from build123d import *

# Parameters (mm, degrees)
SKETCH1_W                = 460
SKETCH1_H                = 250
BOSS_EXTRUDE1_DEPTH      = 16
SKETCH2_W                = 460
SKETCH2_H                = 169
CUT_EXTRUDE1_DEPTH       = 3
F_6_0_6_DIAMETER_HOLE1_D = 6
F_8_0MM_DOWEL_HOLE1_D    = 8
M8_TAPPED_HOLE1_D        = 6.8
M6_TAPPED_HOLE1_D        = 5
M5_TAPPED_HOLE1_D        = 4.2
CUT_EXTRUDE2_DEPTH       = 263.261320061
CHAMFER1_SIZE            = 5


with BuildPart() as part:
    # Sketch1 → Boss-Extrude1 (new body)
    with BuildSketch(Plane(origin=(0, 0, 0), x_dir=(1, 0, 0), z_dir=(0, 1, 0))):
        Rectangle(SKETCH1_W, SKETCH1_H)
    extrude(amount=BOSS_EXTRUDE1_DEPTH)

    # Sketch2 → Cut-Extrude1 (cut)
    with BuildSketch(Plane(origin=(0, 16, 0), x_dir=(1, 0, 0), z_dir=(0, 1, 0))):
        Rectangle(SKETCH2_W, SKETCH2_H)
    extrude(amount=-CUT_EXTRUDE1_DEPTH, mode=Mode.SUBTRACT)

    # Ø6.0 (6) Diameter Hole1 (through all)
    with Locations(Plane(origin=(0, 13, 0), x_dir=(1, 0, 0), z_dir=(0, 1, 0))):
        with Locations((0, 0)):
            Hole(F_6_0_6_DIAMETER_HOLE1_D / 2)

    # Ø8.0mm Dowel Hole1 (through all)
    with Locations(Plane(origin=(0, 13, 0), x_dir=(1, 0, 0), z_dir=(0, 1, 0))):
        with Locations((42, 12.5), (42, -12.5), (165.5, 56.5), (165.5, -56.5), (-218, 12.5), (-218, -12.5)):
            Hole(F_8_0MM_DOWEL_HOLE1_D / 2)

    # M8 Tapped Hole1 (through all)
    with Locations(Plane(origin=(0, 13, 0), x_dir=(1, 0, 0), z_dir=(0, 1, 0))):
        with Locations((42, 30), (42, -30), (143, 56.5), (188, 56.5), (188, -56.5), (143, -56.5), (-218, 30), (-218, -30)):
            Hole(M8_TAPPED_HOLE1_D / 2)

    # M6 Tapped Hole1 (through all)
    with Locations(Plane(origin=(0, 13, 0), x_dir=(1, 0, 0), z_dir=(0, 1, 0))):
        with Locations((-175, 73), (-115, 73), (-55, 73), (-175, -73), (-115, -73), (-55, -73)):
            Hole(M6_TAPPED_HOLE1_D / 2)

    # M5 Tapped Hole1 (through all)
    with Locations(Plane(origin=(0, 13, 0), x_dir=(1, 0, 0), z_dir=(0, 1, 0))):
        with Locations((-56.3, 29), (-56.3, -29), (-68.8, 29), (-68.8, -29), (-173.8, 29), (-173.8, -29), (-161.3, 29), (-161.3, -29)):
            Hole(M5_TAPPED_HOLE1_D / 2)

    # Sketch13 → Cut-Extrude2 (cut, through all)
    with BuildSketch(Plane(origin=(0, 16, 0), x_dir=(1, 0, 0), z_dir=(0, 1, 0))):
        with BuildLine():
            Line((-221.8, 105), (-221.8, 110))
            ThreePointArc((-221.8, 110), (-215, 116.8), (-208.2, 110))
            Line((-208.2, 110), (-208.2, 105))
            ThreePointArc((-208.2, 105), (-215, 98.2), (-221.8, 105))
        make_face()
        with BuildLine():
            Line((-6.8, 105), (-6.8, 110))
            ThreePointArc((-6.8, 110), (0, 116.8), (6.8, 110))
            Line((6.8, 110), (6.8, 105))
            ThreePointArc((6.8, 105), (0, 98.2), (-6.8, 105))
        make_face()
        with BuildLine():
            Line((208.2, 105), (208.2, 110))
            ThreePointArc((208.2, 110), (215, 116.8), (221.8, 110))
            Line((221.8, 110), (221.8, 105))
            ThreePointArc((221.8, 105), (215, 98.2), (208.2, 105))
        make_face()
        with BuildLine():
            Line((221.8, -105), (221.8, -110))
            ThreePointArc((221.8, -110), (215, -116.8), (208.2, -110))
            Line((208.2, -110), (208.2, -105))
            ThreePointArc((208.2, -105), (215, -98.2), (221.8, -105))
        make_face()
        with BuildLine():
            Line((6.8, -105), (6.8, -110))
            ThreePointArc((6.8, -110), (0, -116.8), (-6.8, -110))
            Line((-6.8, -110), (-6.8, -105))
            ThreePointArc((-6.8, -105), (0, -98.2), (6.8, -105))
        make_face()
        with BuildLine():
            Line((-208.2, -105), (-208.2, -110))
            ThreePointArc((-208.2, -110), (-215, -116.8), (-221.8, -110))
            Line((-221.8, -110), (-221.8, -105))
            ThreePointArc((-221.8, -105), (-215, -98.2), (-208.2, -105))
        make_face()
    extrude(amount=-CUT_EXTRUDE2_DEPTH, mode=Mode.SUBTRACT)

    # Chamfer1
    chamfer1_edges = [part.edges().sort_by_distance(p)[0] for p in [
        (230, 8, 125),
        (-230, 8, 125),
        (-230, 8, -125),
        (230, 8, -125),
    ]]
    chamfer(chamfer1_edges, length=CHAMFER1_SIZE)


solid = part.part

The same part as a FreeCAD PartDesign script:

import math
import FreeCAD as App
import Part
import Sketcher

V = App.Vector


def edges_at(feature, points):
    """Names of the edges that pass closest to the given points."""
    edges = feature.Shape.Edges
    near = lambda p: min(range(len(edges)), key=lambda i: edges[i].distToShape(Part.Vertex(*p))[0])
    return sorted({f"Edge{near(p) + 1}" for p in points})

doc = App.newDocument("Part")
params = doc.addObject("Spreadsheet::Sheet", "Params")
for row, (alias, value) in enumerate([
    ("sketch1_width", "460 mm"),
    ("sketch1_height", "250 mm"),
    ("pad1_length", "16 mm"),
    ("sketch2_width", "460 mm"),
    ("sketch2_height", "169 mm"),
    ("pocket1_length", "3 mm"),
    ("sketch3_diameter", "6 mm"),
    ("hole_diameter", "6 mm"),
    ("sketch4_diameter", "8 mm"),
    ("hole2_diameter", "8 mm"),
    ("sketch5_diameter", "6.8 mm"),
    ("hole3_diameter", "6.8 mm"),
    ("sketch6_diameter", "5 mm"),
    ("hole4_diameter", "5 mm"),
    ("sketch7_diameter", "4.2 mm"),
    ("hole5_diameter", "4.2 mm"),
    ("sketch8_radius", "6.8 mm"),
    ("sketch8_height", "5 mm"),
    ("chamfer_size", "5 mm"),
], start=1):
    params.set(f"A{row}", alias)
    params.set(f"B{row}", "=" + value)
    params.setAlias(f"B{row}", alias)

body = doc.addObject("PartDesign::Body", "Body")

# Sketch on XZ plane
sketch1 = body.newObject("Sketcher::SketchObject", "Sketch")
sketch1.AttachmentSupport = (doc.getObject("XZ_Plane"), [""])
sketch1.MapMode = "FlatFace"
sketch1.addGeometry([
    Part.LineSegment(V(-230, -125, 0), V(-230, 125, 0)),
    Part.LineSegment(V(-230, 125, 0), V(230, 125, 0)),
    Part.LineSegment(V(230, 125, 0), V(230, -125, 0)),
    Part.LineSegment(V(230, -125, 0), V(-230, -125, 0)),
], False)
sketch1.addConstraint([
    Sketcher.Constraint("Coincident", 0, 2, 1, 1),
    Sketcher.Constraint("Coincident", 1, 2, 2, 1),
    Sketcher.Constraint("Coincident", 2, 2, 3, 1),
    Sketcher.Constraint("Coincident", 3, 2, 0, 1),
    Sketcher.Constraint("Vertical", 0),
    Sketcher.Constraint("Horizontal", 1),
    Sketcher.Constraint("Vertical", 2),
    Sketcher.Constraint("Horizontal", 3),
    Sketcher.Constraint("Symmetric", 0, 2, 2, 2, -1, 1),
    Sketcher.Constraint("DistanceX", 1, 1, 1, 2, 460.0),
    Sketcher.Constraint("DistanceY", 0, 1, 0, 2, 250.0),
])
sketch1.setExpression("Constraints[9]", "Params.sketch1_width")
sketch1.setExpression("Constraints[10]", "Params.sketch1_height")
pad1 = body.newObject("PartDesign::Pad", "Pad")
pad1.Profile = sketch1
pad1.setExpression("Length", "Params.pad1_length")
pad1.Reversed = True

# Sketch on XZ plane
sketch2 = body.newObject("Sketcher::SketchObject", "Sketch001")
sketch2.AttachmentSupport = (doc.getObject("XZ_Plane"), [""])
sketch2.MapMode = "FlatFace"
sketch2.AttachmentOffset = App.Placement(V(0, 0, -16), App.Rotation())
sketch2.addGeometry([
    Part.LineSegment(V(-230, -84, 0), V(-230, 84, 0)),
    Part.LineSegment(V(-230, 84, 0), V(230, 84, 0)),
    Part.LineSegment(V(230, 84, 0), V(230, -84, 0)),
    Part.LineSegment(V(230, -84, 0), V(-230, -84, 0)),
], False)
sketch2.addConstraint([
    Sketcher.Constraint("Coincident", 0, 2, 1, 1),
    Sketcher.Constraint("Coincident", 1, 2, 2, 1),
    Sketcher.Constraint("Coincident", 2, 2, 3, 1),
    Sketcher.Constraint("Coincident", 3, 2, 0, 1),
    Sketcher.Constraint("Vertical", 0),
    Sketcher.Constraint("Horizontal", 1),
    Sketcher.Constraint("Vertical", 2),
    Sketcher.Constraint("Horizontal", 3),
    Sketcher.Constraint("Symmetric", 0, 2, 2, 2, -1, 1),
    Sketcher.Constraint("DistanceX", 1, 1, 1, 2, 460.0),
    Sketcher.Constraint("DistanceY", 0, 1, 0, 2, 169.0),
])
sketch2.setExpression("Constraints[9]", "Params.sketch2_width")
sketch2.setExpression("Constraints[10]", "Params.sketch2_height")
pocket1 = body.newObject("PartDesign::Pocket", "Pocket")
pocket1.Profile = sketch2
pocket1.setExpression("Length", "Params.pocket1_length")
pocket1.Reversed = True

# Sketch on XZ plane
sketch3 = body.newObject("Sketcher::SketchObject", "Sketch002")
sketch3.AttachmentSupport = (doc.getObject("XZ_Plane"), [""])
sketch3.MapMode = "FlatFace"
sketch3.AttachmentOffset = App.Placement(V(0, 0, -13), App.Rotation())
sketch3.addGeometry(Part.Circle(V(0, 0, 0), V(0, 0, 1), 3), False)
sketch3.addConstraint([
    Sketcher.Constraint("Coincident", 0, 3, -1, 1),
    Sketcher.Constraint("Diameter", 0, 6.0),
])
sketch3.setExpression("Constraints[1]", "Params.sketch3_diameter")
doc.recompute()
hole = body.newObject("PartDesign::Hole", "Hole")
hole.Profile = sketch3
hole.ThreadType = "None"
hole.setExpression("Diameter", "Params.hole_diameter")
hole.DepthType = "ThroughAll"
hole.Reversed = True

# Sketch on XZ plane
sketch4 = body.newObject("Sketcher::SketchObject", "Sketch003")
sketch4.AttachmentSupport = (doc.getObject("XZ_Plane"), [""])
sketch4.MapMode = "FlatFace"
sketch4.AttachmentOffset = App.Placement(V(0, 0, -13), App.Rotation())
sketch4.addGeometry([
    Part.Circle(V(42, -12.5, 0), V(0, 0, 1), 4),  # 0
    Part.Circle(V(42, 12.5, 0), V(0, 0, 1), 4),  # 1
    Part.Circle(V(165.5, -56.5, 0), V(0, 0, 1), 4),  # 2
    Part.Circle(V(165.5, 56.5, 0), V(0, 0, 1), 4),  # 3
    Part.Circle(V(-218, -12.5, 0), V(0, 0, 1), 4),  # 4
    Part.Circle(V(-218, 12.5, 0), V(0, 0, 1), 4),  # 5
], False)
sketch4.addConstraint([
    Sketcher.Constraint("Equal", 0, 1),
    Sketcher.Constraint("Equal", 1, 2),
    Sketcher.Constraint("Equal", 2, 3),
    Sketcher.Constraint("Equal", 3, 4),
    Sketcher.Constraint("Equal", 4, 5),
    Sketcher.Constraint("Symmetric", 0, 3, 1, 3, -1),
    Sketcher.Constraint("Symmetric", 2, 3, 3, 3, -1),
    Sketcher.Constraint("Symmetric", 4, 3, 5, 3, -1),
    Sketcher.Constraint("Horizontal", 0, 3, 4, 3),
    Sketcher.Constraint("Diameter", 0, 8.0),
    Sketcher.Constraint("DistanceX", -1, 1, 0, 3, 42.0),
    Sketcher.Constraint("DistanceX", 4, 3, -1, 1, 218.0),
    Sketcher.Constraint("DistanceY", 0, 3, 1, 3, 25.0),
    Sketcher.Constraint("DistanceY", 2, 3, 0, 3, 44.0),
    Sketcher.Constraint("DistanceX", -1, 1, 2, 3, 165.5),
])
sketch4.setExpression("Constraints[9]", "Params.sketch4_diameter")
doc.recompute()
hole2 = body.newObject("PartDesign::Hole", "Hole001")
hole2.Profile = sketch4
hole2.ThreadType = "None"
hole2.setExpression("Diameter", "Params.hole2_diameter")
hole2.DepthType = "ThroughAll"
hole2.Reversed = True

# Sketch on XZ plane
sketch5 = body.newObject("Sketcher::SketchObject", "Sketch004")
sketch5.AttachmentSupport = (doc.getObject("XZ_Plane"), [""])
sketch5.MapMode = "FlatFace"
sketch5.AttachmentOffset = App.Placement(V(0, 0, -13), App.Rotation())
sketch5.addGeometry([
    Part.Circle(V(42, -30, 0), V(0, 0, 1), 3.4),  # 0
    Part.Circle(V(42, 30, 0), V(0, 0, 1), 3.4),  # 1
    Part.Circle(V(143, -56.5, 0), V(0, 0, 1), 3.4),  # 2
    Part.Circle(V(188, -56.5, 0), V(0, 0, 1), 3.4),  # 3
    Part.Circle(V(188, 56.5, 0), V(0, 0, 1), 3.4),  # 4
    Part.Circle(V(143, 56.5, 0), V(0, 0, 1), 3.4),  # 5
    Part.Circle(V(-218, -30, 0), V(0, 0, 1), 3.4),  # 6
    Part.Circle(V(-218, 30, 0), V(0, 0, 1), 3.4),  # 7
], False)
sketch5.addConstraint([
    Sketcher.Constraint("Equal", 0, 1),
    Sketcher.Constraint("Equal", 1, 2),
    Sketcher.Constraint("Equal", 2, 3),
    Sketcher.Constraint("Equal", 3, 4),
    Sketcher.Constraint("Equal", 4, 5),
    Sketcher.Constraint("Equal", 5, 6),
    Sketcher.Constraint("Equal", 6, 7),
    Sketcher.Constraint("Symmetric", 0, 3, 1, 3, -1),
    Sketcher.Constraint("Symmetric", 3, 3, 4, 3, -1),
    Sketcher.Constraint("Symmetric", 2, 3, 5, 3, -1),
    Sketcher.Constraint("Symmetric", 6, 3, 7, 3, -1),
    Sketcher.Constraint("Horizontal", 2, 3, 3, 3),
    Sketcher.Constraint("Horizontal", 0, 3, 6, 3),
    Sketcher.Constraint("Diameter", 0, 6.8),
    Sketcher.Constraint("DistanceX", -1, 1, 0, 3, 42.0),
    Sketcher.Constraint("DistanceY", 0, 3, -1, 1, 30.0),
    Sketcher.Constraint("DistanceX", -1, 1, 2, 3, 143.0),
    Sketcher.Constraint("DistanceX", -1, 1, 3, 3, 188.0),
    Sketcher.Constraint("DistanceX", 6, 3, -1, 1, 218.0),
    Sketcher.Constraint("DistanceY", 3, 3, 4, 3, 113.0),
])
sketch5.setExpression("Constraints[13]", "Params.sketch5_diameter")
doc.recompute()
hole3 = body.newObject("PartDesign::Hole", "Hole002")
hole3.Profile = sketch5
hole3.ThreadType = "None"
hole3.setExpression("Diameter", "Params.hole3_diameter")
hole3.DepthType = "ThroughAll"
hole3.Reversed = True

# Sketch on XZ plane
sketch6 = body.newObject("Sketcher::SketchObject", "Sketch005")
sketch6.AttachmentSupport = (doc.getObject("XZ_Plane"), [""])
sketch6.MapMode = "FlatFace"
sketch6.AttachmentOffset = App.Placement(V(0, 0, -13), App.Rotation())
sketch6.addGeometry([
    Part.Circle(V(-175, -73, 0), V(0, 0, 1), 2.5),  # 0
    Part.Circle(V(-115, -73, 0), V(0, 0, 1), 2.5),  # 1
    Part.Circle(V(-55, -73, 0), V(0, 0, 1), 2.5),  # 2
    Part.Circle(V(-175, 73, 0), V(0, 0, 1), 2.5),  # 3
    Part.Circle(V(-115, 73, 0), V(0, 0, 1), 2.5),  # 4
    Part.Circle(V(-55, 73, 0), V(0, 0, 1), 2.5),  # 5
], False)
sketch6.addConstraint([
    Sketcher.Constraint("Equal", 0, 1),
    Sketcher.Constraint("Equal", 1, 2),
    Sketcher.Constraint("Equal", 2, 3),
    Sketcher.Constraint("Equal", 3, 4),
    Sketcher.Constraint("Equal", 4, 5),
    Sketcher.Constraint("Symmetric", 0, 3, 3, 3, -1),
    Sketcher.Constraint("Symmetric", 1, 3, 4, 3, -1),
    Sketcher.Constraint("Symmetric", 2, 3, 5, 3, -1),
    Sketcher.Constraint("Horizontal", 0, 3, 1, 3),
    Sketcher.Constraint("Horizontal", 1, 3, 2, 3),
    Sketcher.Constraint("Diameter", 0, 5.0),
    Sketcher.Constraint("DistanceX", 0, 3, -1, 1, 175.0),
    Sketcher.Constraint("DistanceY", 0, 3, -1, 1, 73.0),
    Sketcher.Constraint("DistanceX", 1, 3, -1, 1, 115.0),
    Sketcher.Constraint("DistanceX", 2, 3, -1, 1, 55.0),
])
sketch6.setExpression("Constraints[10]", "Params.sketch6_diameter")
doc.recompute()
hole4 = body.newObject("PartDesign::Hole", "Hole003")
hole4.Profile = sketch6
hole4.ThreadType = "None"
hole4.setExpression("Diameter", "Params.hole4_diameter")
hole4.DepthType = "ThroughAll"
hole4.Reversed = True

# Sketch on XZ plane
sketch7 = body.newObject("Sketcher::SketchObject", "Sketch006")
sketch7.AttachmentSupport = (doc.getObject("XZ_Plane"), [""])
sketch7.MapMode = "FlatFace"
sketch7.AttachmentOffset = App.Placement(V(0, 0, -13), App.Rotation())
sketch7.addGeometry([
    Part.Circle(V(-56.3, -29, 0), V(0, 0, 1), 2.1),  # 0
    Part.Circle(V(-56.3, 29, 0), V(0, 0, 1), 2.1),  # 1
    Part.Circle(V(-68.8, -29, 0), V(0, 0, 1), 2.1),  # 2
    Part.Circle(V(-68.8, 29, 0), V(0, 0, 1), 2.1),  # 3
    Part.Circle(V(-173.8, -29, 0), V(0, 0, 1), 2.1),  # 4
    Part.Circle(V(-173.8, 29, 0), V(0, 0, 1), 2.1),  # 5
    Part.Circle(V(-161.3, -29, 0), V(0, 0, 1), 2.1),  # 6
    Part.Circle(V(-161.3, 29, 0), V(0, 0, 1), 2.1),  # 7
], False)
sketch7.addConstraint([
    Sketcher.Constraint("Equal", 0, 1),
    Sketcher.Constraint("Equal", 1, 2),
    Sketcher.Constraint("Equal", 2, 3),
    Sketcher.Constraint("Equal", 3, 4),
    Sketcher.Constraint("Equal", 4, 5),
    Sketcher.Constraint("Equal", 5, 6),
    Sketcher.Constraint("Equal", 6, 7),
    Sketcher.Constraint("Symmetric", 0, 3, 1, 3, -1),
    Sketcher.Constraint("Symmetric", 2, 3, 3, 3, -1),
    Sketcher.Constraint("Symmetric", 4, 3, 5, 3, -1),
    Sketcher.Constraint("Symmetric", 6, 3, 7, 3, -1),
    Sketcher.Constraint("Horizontal", 0, 3, 2, 3),
    Sketcher.Constraint("Horizontal", 2, 3, 4, 3),
    Sketcher.Constraint("Horizontal", 4, 3, 6, 3),
    Sketcher.Constraint("Diameter", 0, 4.2),
    Sketcher.Constraint("DistanceY", 0, 3, -1, 1, 29.0),
    Sketcher.Constraint("DistanceX", 4, 3, 2, 3, 105.0),
    Sketcher.Constraint("DistanceX", 6, 3, 0, 3, 105.0),
    Sketcher.Constraint("DistanceX", 0, 3, -1, 1, 56.3),
    Sketcher.Constraint("DistanceX", 2, 3, -1, 1, 68.8),
])
sketch7.setExpression("Constraints[14]", "Params.sketch7_diameter")
doc.recompute()
hole5 = body.newObject("PartDesign::Hole", "Hole004")
hole5.Profile = sketch7
hole5.ThreadType = "None"
hole5.setExpression("Diameter", "Params.hole5_diameter")
hole5.DepthType = "ThroughAll"
hole5.Reversed = True

# Sketch on XZ plane
sketch8 = body.newObject("Sketcher::SketchObject", "Sketch007")
sketch8.AttachmentSupport = (doc.getObject("XZ_Plane"), [""])
sketch8.MapMode = "FlatFace"
sketch8.AttachmentOffset = App.Placement(V(0, 0, -16), App.Rotation())
sketch8.addGeometry([
    Part.LineSegment(V(-222, -110, 0), V(-222, -105, 0)),  # 0
    Part.ArcOfCircle(Part.Circle(V(-215, -105, 0), V(0, 0, 1), 7), math.radians(0), math.radians(180)),  # 1
    Part.LineSegment(V(-208, -105, 0), V(-208, -110, 0)),  # 2
    Part.ArcOfCircle(Part.Circle(V(-215, -110, 0), V(0, 0, 1), 7), math.radians(180), math.radians(360)),  # 3
    Part.LineSegment(V(-7, -110, 0), V(-7, -105, 0)),  # 4
    Part.ArcOfCircle(Part.Circle(V(0, -105, 0), V(0, 0, 1), 7), math.radians(0), math.radians(180)),  # 5
    Part.LineSegment(V(7, -105, 0), V(7, -110, 0)),  # 6
    Part.ArcOfCircle(Part.Circle(V(0, -110, 0), V(0, 0, 1), 7), math.radians(180), math.radians(360)),  # 7
    Part.LineSegment(V(208, -110, 0), V(208, -105, 0)),  # 8
    Part.ArcOfCircle(Part.Circle(V(215, -105, 0), V(0, 0, 1), 7), math.radians(0), math.radians(180)),  # 9
    Part.LineSegment(V(222, -105, 0), V(222, -110, 0)),  # 10
    Part.ArcOfCircle(Part.Circle(V(215, -110, 0), V(0, 0, 1), 7), math.radians(180), math.radians(360)),  # 11
    Part.LineSegment(V(222, 110, 0), V(222, 105, 0)),  # 12
    Part.ArcOfCircle(Part.Circle(V(215, 105, 0), V(0, 0, 1), 7), math.radians(180), math.radians(360)),  # 13
    Part.LineSegment(V(208, 105, 0), V(208, 110, 0)),  # 14
    Part.ArcOfCircle(Part.Circle(V(215, 110, 0), V(0, 0, 1), 7), math.radians(0), math.radians(180)),  # 15
    Part.LineSegment(V(7, 110, 0), V(7, 105, 0)),  # 16
    Part.ArcOfCircle(Part.Circle(V(0, 105, 0), V(0, 0, 1), 7), math.radians(180), math.radians(360)),  # 17
    Part.LineSegment(V(-7, 105, 0), V(-7, 110, 0)),  # 18
    Part.ArcOfCircle(Part.Circle(V(0, 110, 0), V(0, 0, 1), 7), math.radians(0), math.radians(180)),  # 19
    Part.LineSegment(V(-208, 110, 0), V(-208, 105, 0)),  # 20
    Part.ArcOfCircle(Part.Circle(V(-215, 105, 0), V(0, 0, 1), 7), math.radians(180), math.radians(360)),  # 21
    Part.LineSegment(V(-222, 105, 0), V(-222, 110, 0)),  # 22
    Part.ArcOfCircle(Part.Circle(V(-215, 110, 0), V(0, 0, 1), 7), math.radians(0), math.radians(180)),  # 23
], False)
sketch8.addConstraint([
    Sketcher.Constraint("Tangent", 0, 2, 1, 2),
    Sketcher.Constraint("Tangent", 1, 1, 2, 1),
    Sketcher.Constraint("Tangent", 2, 2, 3, 2),
    Sketcher.Constraint("Tangent", 3, 1, 0, 1),
    Sketcher.Constraint("Tangent", 4, 2, 5, 2),
    Sketcher.Constraint("Tangent", 5, 1, 6, 1),
    Sketcher.Constraint("Tangent", 6, 2, 7, 2),
    Sketcher.Constraint("Tangent", 7, 1, 4, 1),
    Sketcher.Constraint("Tangent", 8, 2, 9, 2),
    Sketcher.Constraint("Tangent", 9, 1, 10, 1),
    Sketcher.Constraint("Tangent", 10, 2, 11, 2),
    Sketcher.Constraint("Tangent", 11, 1, 8, 1),
    Sketcher.Constraint("Tangent", 12, 2, 13, 2),
    Sketcher.Constraint("Tangent", 13, 1, 14, 1),
    Sketcher.Constraint("Tangent", 14, 2, 15, 2),
    Sketcher.Constraint("Tangent", 15, 1, 12, 1),
    Sketcher.Constraint("Tangent", 16, 2, 17, 2),
    Sketcher.Constraint("Tangent", 17, 1, 18, 1),
    Sketcher.Constraint("Tangent", 18, 2, 19, 2),
    Sketcher.Constraint("Tangent", 19, 1, 16, 1),
    Sketcher.Constraint("Tangent", 20, 2, 21, 2),
    Sketcher.Constraint("Tangent", 21, 1, 22, 1),
    Sketcher.Constraint("Tangent", 22, 2, 23, 2),
    Sketcher.Constraint("Tangent", 23, 1, 20, 1),
    Sketcher.Constraint("Vertical", 0),
    Sketcher.Constraint("Vertical", 2),
    Sketcher.Constraint("Vertical", 4),
    Sketcher.Constraint("Vertical", 6),
    Sketcher.Constraint("Vertical", 8),
    Sketcher.Constraint("Vertical", 10),
    Sketcher.Constraint("Vertical", 12),
    Sketcher.Constraint("Vertical", 14),
    Sketcher.Constraint("Vertical", 16),
    Sketcher.Constraint("Vertical", 18),
    Sketcher.Constraint("Vertical", 20),
    Sketcher.Constraint("Vertical", 22),
    Sketcher.Constraint("Equal", 3, 5),
    Sketcher.Constraint("Equal", 7, 9),
    Sketcher.Constraint("Equal", 11, 13),
    Sketcher.Constraint("Equal", 15, 17),
    Sketcher.Constraint("Equal", 19, 21),
    Sketcher.Constraint("Symmetric", 1, 3, 13, 3, -1, 1),
    Sketcher.Constraint("Symmetric", 5, 3, 17, 3, -1, 1),
    Sketcher.Constraint("Symmetric", 9, 3, 21, 3, -1, 1),
    Sketcher.Constraint("Symmetric", 1, 3, 9, 3, -2),
    Sketcher.Constraint("Symmetric", 7, 3, 19, 3, -1),
    Sketcher.Constraint("Horizontal", 1, 3, 5, 3),
    Sketcher.Constraint("Horizontal", 3, 3, 7, 3),
    Sketcher.Constraint("Horizontal", 7, 3, 11, 3),
    Sketcher.Constraint("Horizontal", 15, 3, 19, 3),
    Sketcher.Constraint("Horizontal", 19, 3, 23, 3),
    Sketcher.Constraint("Radius", 1, 6.8),
    Sketcher.Constraint("DistanceY", 0, 1, 0, 2, 5.0),
    Sketcher.Constraint("DistanceX", 1, 3, -1, 1, 215.0),
    Sketcher.Constraint("DistanceY", 1, 3, -1, 1, 105.0),
])
sketch8.setExpression("Constraints[51]", "Params.sketch8_radius")
sketch8.setExpression("Constraints[52]", "Params.sketch8_height")
pocket2 = body.newObject("PartDesign::Pocket", "Pocket001")
pocket2.Profile = sketch8
pocket2.Type = "ThroughAll"
pocket2.Reversed = True
doc.recompute()

chamfer = body.newObject("PartDesign::Chamfer", "Chamfer")
chamfer.Base = (pocket2, edges_at(pocket2, [
    (230, 8, 125),
    (-230, 8, 125),
    (-230, 8, -125),
    (230, 8, -125),
]))
chamfer.setExpression("Size", "Params.chamfer_size")

doc.recompute()
